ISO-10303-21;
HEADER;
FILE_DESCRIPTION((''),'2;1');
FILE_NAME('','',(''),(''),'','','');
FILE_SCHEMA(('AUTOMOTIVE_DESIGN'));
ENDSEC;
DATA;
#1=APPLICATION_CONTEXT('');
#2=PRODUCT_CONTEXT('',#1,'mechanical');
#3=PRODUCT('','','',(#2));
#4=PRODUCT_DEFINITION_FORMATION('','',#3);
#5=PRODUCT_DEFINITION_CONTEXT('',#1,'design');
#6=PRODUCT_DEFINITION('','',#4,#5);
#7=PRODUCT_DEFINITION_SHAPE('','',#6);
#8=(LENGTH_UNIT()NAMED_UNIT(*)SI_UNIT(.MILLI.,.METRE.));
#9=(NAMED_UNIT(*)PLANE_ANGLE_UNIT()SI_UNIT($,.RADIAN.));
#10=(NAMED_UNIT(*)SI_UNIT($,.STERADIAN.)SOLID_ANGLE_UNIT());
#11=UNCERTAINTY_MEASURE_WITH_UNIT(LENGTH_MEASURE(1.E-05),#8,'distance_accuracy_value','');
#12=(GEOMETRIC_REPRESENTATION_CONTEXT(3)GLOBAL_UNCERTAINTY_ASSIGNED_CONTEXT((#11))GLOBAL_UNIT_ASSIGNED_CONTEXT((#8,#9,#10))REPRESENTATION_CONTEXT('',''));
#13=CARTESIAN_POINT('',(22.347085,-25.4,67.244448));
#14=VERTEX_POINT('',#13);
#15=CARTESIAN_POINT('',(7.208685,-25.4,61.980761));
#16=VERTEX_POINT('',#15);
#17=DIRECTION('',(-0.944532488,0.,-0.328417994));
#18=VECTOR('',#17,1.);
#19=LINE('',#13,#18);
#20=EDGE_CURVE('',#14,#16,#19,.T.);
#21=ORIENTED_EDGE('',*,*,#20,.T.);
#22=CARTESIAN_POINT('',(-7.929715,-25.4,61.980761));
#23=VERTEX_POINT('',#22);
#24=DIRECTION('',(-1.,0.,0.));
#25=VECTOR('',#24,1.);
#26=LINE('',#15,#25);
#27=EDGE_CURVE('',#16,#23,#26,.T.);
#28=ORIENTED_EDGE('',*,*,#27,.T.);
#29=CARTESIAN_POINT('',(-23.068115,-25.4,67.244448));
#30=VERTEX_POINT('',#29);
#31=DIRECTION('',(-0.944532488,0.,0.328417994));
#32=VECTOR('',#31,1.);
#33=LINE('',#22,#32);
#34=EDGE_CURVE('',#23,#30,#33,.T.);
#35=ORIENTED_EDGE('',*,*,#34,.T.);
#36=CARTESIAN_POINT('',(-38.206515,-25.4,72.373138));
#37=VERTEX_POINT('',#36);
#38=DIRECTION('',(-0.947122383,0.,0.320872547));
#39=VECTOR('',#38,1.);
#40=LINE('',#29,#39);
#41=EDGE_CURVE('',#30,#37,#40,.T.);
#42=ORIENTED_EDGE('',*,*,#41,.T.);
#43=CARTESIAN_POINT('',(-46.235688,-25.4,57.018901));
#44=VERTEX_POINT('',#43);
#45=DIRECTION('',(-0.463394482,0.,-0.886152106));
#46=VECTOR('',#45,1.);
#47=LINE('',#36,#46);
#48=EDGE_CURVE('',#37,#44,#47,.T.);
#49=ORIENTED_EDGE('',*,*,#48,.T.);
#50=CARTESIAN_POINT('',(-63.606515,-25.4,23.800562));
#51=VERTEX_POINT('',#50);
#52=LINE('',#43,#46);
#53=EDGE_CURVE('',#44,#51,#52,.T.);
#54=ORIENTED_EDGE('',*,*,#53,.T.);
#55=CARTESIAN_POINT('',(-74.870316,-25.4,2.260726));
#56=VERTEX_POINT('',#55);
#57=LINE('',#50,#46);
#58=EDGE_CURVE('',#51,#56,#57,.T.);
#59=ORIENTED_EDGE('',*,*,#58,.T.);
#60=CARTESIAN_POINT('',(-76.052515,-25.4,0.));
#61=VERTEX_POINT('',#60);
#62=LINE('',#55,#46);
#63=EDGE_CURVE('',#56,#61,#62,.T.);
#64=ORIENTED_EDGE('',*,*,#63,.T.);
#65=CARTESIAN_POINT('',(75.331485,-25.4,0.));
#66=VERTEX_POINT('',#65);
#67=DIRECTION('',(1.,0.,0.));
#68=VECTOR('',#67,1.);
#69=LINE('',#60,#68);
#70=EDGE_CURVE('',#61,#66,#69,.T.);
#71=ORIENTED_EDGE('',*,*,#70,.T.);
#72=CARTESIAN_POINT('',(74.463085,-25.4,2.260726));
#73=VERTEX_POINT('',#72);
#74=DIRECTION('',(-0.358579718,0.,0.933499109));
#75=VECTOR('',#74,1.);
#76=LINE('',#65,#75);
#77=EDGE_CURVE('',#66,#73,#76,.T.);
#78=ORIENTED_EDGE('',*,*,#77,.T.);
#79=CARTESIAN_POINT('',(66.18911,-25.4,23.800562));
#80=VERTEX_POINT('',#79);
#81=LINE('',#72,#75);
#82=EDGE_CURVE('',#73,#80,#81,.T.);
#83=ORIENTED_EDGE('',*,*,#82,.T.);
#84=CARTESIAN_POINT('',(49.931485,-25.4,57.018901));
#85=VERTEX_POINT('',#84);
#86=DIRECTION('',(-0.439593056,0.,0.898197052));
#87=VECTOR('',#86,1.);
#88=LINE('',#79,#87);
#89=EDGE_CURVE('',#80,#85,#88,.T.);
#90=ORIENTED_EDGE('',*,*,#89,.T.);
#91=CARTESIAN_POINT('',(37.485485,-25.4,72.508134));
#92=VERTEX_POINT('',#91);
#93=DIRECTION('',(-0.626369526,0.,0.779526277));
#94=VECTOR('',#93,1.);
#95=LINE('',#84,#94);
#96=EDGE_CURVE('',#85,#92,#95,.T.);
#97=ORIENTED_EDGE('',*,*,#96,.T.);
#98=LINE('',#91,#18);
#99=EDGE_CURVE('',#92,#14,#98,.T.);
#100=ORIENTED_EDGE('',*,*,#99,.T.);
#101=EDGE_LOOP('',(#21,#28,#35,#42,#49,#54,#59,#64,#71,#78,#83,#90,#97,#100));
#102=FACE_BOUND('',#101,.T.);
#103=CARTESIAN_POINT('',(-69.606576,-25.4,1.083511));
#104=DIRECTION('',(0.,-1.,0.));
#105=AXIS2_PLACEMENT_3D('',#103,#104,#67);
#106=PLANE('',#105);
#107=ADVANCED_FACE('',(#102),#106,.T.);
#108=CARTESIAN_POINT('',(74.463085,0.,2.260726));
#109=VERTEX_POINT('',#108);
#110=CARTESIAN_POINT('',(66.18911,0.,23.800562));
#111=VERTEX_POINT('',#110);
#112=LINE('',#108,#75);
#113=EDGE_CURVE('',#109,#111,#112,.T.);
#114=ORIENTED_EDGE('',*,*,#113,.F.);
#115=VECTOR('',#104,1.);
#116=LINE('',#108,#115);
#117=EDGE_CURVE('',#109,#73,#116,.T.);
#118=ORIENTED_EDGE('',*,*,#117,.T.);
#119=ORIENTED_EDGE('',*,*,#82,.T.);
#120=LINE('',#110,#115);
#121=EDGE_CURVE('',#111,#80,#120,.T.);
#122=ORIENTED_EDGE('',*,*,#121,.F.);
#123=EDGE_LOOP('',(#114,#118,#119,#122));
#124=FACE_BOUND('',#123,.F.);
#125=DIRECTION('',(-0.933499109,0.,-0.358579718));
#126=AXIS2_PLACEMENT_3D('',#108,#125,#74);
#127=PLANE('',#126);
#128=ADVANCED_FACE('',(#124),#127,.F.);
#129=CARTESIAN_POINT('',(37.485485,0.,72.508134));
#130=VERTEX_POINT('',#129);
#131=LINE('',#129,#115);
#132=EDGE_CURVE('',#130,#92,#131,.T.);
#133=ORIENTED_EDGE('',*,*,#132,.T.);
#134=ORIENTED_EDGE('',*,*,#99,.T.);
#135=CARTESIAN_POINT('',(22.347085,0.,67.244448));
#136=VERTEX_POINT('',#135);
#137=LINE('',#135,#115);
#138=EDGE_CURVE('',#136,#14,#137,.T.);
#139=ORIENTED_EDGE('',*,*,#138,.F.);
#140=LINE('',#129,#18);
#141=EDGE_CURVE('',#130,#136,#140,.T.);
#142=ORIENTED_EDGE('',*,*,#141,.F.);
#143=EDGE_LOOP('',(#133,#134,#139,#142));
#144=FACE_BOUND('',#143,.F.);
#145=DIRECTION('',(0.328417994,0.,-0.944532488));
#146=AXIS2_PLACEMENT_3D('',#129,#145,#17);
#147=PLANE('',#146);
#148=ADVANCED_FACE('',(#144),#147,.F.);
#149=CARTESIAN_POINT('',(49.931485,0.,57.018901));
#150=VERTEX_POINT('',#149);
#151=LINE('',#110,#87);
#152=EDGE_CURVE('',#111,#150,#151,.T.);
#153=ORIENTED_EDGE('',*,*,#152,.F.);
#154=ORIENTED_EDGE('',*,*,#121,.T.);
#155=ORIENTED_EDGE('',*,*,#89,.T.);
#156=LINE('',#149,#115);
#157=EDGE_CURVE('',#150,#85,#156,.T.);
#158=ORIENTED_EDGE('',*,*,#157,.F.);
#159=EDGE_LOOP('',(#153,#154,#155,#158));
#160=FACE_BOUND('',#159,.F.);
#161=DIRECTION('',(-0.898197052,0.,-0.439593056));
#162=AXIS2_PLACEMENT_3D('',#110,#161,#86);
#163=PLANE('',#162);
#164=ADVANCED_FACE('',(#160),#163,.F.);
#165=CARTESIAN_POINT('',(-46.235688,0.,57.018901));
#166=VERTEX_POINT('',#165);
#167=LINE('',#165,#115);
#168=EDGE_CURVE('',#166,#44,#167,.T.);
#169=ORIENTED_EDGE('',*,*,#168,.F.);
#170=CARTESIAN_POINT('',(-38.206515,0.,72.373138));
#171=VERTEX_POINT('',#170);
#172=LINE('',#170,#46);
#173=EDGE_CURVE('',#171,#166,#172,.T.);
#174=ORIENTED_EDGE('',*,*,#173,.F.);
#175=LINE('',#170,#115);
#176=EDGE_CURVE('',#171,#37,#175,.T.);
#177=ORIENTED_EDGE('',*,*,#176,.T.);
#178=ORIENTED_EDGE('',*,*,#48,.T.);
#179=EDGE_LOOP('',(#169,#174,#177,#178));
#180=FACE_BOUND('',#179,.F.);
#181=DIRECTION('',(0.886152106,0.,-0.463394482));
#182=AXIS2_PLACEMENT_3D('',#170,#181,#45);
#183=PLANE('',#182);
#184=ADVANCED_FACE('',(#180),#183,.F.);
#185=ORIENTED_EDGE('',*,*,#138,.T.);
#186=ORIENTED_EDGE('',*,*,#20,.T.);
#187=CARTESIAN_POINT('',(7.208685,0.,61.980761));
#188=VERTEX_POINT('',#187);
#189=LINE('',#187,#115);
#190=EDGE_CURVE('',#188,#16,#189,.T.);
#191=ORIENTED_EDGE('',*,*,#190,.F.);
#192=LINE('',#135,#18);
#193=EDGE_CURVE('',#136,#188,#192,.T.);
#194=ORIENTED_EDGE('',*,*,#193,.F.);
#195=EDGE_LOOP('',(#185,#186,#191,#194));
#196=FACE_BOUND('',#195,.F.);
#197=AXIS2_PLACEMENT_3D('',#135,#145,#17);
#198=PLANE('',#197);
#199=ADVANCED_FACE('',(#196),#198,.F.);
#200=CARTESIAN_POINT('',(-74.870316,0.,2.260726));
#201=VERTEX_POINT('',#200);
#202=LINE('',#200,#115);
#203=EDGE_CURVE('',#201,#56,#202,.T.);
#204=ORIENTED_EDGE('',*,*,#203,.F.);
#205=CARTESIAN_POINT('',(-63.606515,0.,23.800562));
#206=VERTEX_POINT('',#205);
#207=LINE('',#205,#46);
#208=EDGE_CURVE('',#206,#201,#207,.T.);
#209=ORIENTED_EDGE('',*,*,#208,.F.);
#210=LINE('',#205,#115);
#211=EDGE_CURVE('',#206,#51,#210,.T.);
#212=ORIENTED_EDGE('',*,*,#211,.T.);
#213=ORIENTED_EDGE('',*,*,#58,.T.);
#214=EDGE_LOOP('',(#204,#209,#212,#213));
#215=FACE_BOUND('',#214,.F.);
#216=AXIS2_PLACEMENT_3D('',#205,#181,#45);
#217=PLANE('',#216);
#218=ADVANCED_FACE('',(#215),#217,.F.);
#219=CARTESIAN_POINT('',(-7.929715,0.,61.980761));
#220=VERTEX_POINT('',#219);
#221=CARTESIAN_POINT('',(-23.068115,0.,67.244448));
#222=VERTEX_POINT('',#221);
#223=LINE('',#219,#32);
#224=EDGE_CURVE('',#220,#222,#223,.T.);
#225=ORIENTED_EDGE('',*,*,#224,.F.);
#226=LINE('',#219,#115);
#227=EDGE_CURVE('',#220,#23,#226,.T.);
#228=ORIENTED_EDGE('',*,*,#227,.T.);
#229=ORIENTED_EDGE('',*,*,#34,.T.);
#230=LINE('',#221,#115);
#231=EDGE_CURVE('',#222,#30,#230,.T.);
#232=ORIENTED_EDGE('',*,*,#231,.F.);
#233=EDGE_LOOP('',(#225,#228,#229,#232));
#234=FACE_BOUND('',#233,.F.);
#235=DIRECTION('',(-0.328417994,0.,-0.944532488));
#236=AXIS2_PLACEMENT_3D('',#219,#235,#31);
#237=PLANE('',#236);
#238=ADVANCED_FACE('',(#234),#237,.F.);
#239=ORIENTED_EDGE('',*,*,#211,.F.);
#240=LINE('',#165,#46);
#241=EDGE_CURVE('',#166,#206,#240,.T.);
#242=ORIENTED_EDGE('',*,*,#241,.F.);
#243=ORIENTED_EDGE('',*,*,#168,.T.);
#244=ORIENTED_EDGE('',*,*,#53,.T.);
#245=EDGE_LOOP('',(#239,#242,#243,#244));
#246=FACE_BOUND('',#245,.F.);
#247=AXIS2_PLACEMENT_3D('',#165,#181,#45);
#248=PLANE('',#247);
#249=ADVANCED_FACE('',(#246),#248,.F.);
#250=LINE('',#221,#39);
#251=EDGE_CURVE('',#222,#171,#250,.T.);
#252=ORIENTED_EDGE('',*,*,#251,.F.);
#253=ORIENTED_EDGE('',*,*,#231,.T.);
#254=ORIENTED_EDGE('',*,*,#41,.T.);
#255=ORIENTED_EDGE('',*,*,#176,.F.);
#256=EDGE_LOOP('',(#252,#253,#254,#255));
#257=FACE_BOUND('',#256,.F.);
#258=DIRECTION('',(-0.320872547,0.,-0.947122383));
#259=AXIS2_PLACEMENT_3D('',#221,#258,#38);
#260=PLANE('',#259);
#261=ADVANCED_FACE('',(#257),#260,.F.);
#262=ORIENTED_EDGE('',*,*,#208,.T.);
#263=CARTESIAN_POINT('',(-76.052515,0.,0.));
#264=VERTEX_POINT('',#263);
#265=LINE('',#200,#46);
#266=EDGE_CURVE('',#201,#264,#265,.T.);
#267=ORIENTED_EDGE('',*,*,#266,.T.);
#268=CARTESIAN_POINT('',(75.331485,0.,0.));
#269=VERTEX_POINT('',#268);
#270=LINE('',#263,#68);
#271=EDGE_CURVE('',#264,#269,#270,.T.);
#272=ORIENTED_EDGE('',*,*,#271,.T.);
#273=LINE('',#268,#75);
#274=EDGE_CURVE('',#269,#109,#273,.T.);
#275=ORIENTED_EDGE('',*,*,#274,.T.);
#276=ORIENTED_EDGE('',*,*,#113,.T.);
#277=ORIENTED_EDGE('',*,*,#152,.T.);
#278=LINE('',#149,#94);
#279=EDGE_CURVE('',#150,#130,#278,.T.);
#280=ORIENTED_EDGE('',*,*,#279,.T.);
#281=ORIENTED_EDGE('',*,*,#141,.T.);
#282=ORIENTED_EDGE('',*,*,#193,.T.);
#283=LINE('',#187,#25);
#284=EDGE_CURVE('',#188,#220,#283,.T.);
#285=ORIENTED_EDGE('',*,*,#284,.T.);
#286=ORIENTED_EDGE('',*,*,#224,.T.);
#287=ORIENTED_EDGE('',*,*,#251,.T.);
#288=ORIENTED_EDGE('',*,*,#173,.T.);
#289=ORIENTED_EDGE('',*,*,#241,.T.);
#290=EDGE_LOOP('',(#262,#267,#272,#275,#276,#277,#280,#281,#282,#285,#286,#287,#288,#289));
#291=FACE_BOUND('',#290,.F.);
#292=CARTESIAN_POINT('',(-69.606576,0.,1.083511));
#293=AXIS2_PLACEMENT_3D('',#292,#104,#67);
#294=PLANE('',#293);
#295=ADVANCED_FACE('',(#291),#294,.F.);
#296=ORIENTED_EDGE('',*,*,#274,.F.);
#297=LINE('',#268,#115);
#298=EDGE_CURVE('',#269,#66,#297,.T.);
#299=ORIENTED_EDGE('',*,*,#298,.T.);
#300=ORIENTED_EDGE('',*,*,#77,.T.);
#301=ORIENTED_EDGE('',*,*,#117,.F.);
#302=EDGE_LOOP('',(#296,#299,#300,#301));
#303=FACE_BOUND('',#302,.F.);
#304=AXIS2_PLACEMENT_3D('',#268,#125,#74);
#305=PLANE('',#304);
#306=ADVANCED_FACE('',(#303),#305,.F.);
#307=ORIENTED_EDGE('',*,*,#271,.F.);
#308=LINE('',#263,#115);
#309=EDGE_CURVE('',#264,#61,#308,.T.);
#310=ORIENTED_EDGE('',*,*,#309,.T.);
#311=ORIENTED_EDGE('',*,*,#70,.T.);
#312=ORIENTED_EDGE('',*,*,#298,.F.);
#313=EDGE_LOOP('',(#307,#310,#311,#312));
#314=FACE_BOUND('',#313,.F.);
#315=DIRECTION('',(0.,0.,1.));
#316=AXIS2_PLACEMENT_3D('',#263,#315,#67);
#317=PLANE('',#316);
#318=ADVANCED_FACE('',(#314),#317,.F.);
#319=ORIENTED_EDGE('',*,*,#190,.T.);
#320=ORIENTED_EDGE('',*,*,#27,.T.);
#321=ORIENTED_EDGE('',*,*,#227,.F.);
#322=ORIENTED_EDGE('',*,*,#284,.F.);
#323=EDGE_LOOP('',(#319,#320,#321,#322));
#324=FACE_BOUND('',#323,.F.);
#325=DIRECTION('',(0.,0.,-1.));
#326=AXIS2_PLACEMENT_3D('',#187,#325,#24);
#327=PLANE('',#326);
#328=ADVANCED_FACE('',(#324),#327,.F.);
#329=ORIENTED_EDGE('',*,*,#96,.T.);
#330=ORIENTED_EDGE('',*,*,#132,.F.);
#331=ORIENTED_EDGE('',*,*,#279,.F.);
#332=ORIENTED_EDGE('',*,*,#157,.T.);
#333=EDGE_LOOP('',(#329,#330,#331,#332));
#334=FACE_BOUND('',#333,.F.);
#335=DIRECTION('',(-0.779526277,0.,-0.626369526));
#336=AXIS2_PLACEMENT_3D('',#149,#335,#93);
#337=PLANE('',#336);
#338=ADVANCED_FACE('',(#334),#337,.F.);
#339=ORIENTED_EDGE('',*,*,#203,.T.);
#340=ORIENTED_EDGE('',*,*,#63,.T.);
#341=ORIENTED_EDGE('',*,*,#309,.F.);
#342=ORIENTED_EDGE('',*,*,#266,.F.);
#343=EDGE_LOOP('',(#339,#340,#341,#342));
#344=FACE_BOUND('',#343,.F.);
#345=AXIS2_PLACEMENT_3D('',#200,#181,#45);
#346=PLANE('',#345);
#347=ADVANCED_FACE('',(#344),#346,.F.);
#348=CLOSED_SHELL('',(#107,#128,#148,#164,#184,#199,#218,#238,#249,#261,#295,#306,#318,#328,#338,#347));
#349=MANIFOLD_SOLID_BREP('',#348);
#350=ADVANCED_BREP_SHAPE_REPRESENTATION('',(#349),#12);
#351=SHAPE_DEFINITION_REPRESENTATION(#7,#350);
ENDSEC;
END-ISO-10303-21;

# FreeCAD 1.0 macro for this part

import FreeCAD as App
import Part
import Sketcher
from FreeCAD import Vector
Q = App.Units.Quantity


def add_polygon(sketch, points):
    """Adds a closed chain of lines whose ends are joined by coincident constraints."""
    first, n = sketch.GeometryCount, len(points)
    for a, b in zip(points, points[1:] + points[:1]):
        sketch.addGeometry(Part.LineSegment(App.Vector(*a, 0), App.Vector(*b, 0)), False)
    for i in range(n):
        sketch.addConstraint(Sketcher.Constraint("Coincident", first + i, 2, first + (i + 1) % n, 1))

doc = App.newDocument("Part")
body = doc.addObject("PartDesign::Body", "Body")

sketch1 = doc.addObject("Sketcher::SketchObject", "Sketch")
body.addObject(sketch1)
sketch1.AttachmentSupport = (doc.XZ_Plane, [""])
sketch1.MapMode = "FlatFace"
add_polygon(sketch1, [(-74.870316, 2.260726), (-76.052515, 0), (75.331485, 0), (74.463085, 2.260726), (66.18911, 23.800562), (49.931485, 57.018901), (37.485485, 72.508134), (22.347085, 67.244448), (7.208685, 61.980761), (-7.929715, 61.980761), (-23.068115, 67.244448), (-38.206515, 72.373138), (-46.235688, 57.018901), (-63.606515, 23.800562)])
sketch1.addConstraint(Sketcher.Constraint("Horizontal", 1))
sketch1.addConstraint(Sketcher.Constraint("Horizontal", 8))
sketch1.addConstraint(Sketcher.Constraint("PointOnObject", 0, 2, -1))
sketch1.addConstraint(Sketcher.Constraint("Parallel", 2, 3))
sketch1.addConstraint(Sketcher.Constraint("Parallel", 6, 7))
sketch1.addConstraint(Sketcher.Constraint("Parallel", 0, 11))
sketch1.addConstraint(Sketcher.Constraint("Parallel", 11, 12))
sketch1.addConstraint(Sketcher.Constraint("Parallel", 12, 13))
sketch1.addConstraint(Sketcher.Constraint("Horizontal", 6, 2, 9, 2))
sketch1.addConstraint(Sketcher.Constraint("Horizontal", 4, 2, 11, 2))
sketch1.addConstraint(Sketcher.Constraint("Horizontal", 3, 2, 12, 2))
sketch1.addConstraint(Sketcher.Constraint("Horizontal", 2, 2, 13, 2))
sketch1.addConstraint(Sketcher.Constraint("Equal", 6, 7))
sketch1.addConstraint(Sketcher.Constraint("Equal", 7, 9))
sketch1.addConstraint(Sketcher.Constraint("DistanceX", 4, 2, 1, 2, Q("1 in")))
sketch1.addConstraint(Sketcher.Constraint("DistanceX", 12, 2, 10, 2, Q("1 in")))
sketch1.addConstraint(Sketcher.Constraint("DistanceX", 1, 1, 1, 2, Q("5.96 in")))
sketch1.addConstraint(Sketcher.Constraint("DistanceX", 8, 2, 8, 1, Q("0.596 in")))
sketch1.addConstraint(Sketcher.Constraint("DistanceX", 5, 2, 4, 2, Q("0.49 in")))
sketch1.addConstraint(Sketcher.Constraint("DistanceX", 10, 2, 5, 2, Q("2.98 in")))
sketch1.addConstraint(Sketcher.Constraint("Distance", 6, Q("0.631 in")))
sketch1.addConstraint(Sketcher.Constraint("DistanceX", 6, 2, 5, 2, Q("0.596 in")))
sketch1.addConstraint(Sketcher.Constraint("DistanceY", -1, 1, 4, 2, Q("57.018901 mm")))
sketch1.addConstraint(Sketcher.Constraint("DistanceX", 2, 2, 1, 2, Q("0.8684 mm")))
sketch1.addConstraint(Sketcher.Constraint("DistanceY", 3, 2, 7, 2, Q("38.180199 mm")))
sketch1.addConstraint(Sketcher.Constraint("DistanceX", 0, 2, 13, 2, Q("1.182199 mm")))
sketch1.addConstraint(Sketcher.Constraint("Distance", 0, Q("2.551172 mm")))
sketch1.addConstraint(Sketcher.Constraint("DistanceX", -1, 1, 3, 2, Q("66.18911 mm")))
pad1 = doc.addObject("PartDesign::Pad", "Pad")
body.addObject(pad1)
pad1.Profile = sketch1
pad1.Length = Q("1 in")

doc.recompute()
